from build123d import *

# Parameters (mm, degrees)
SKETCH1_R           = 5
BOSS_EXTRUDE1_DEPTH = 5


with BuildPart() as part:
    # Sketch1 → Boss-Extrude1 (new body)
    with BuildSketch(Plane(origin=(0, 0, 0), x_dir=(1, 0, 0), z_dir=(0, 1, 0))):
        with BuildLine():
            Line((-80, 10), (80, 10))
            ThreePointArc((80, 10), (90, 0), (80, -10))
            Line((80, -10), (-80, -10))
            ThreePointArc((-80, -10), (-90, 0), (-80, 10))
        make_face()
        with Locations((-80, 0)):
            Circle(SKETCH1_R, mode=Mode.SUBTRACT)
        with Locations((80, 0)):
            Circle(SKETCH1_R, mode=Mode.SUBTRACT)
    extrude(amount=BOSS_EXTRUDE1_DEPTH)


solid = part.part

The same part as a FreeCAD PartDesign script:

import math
import FreeCAD as App
import Part
import Sketcher

doc = App.newDocument("Part")
params = doc.addObject("Spreadsheet::Sheet", "Params")
for row, (alias, value) in enumerate([
    ("sketch1_diameter", "10 mm"),
    ("sketch1_radius", "10 mm"),
    ("sketch1_width", "160 mm"),
    ("pad1_length", "5 mm"),
], start=1):
    params.set(f"A{row}", alias)
    params.set(f"B{row}", "=" + value)
    params.setAlias(f"B{row}", alias)

body = doc.addObject("PartDesign::Body", "Body")

# Sketch on XZ plane
sketch1 = body.newObject("Sketcher::SketchObject", "Sketch")
sketch1.AttachmentSupport = (doc.getObject("XZ_Plane"), [""])
sketch1.MapMode = "FlatFace"
sketch1.addGeometry(Part.LineSegment(App.Vector(80, -10, 0), App.Vector(-80, -10, 0)), False)
sketch1.addGeometry(Part.ArcOfCircle(Part.Circle(App.Vector(-80, 0, 0), App.Vector(0, 0, 1), 10), math.radians(90), math.radians(270)), False)
sketch1.addGeometry(Part.LineSegment(App.Vector(-80, 10, 0), App.Vector(80, 10, 0)), False)
sketch1.addGeometry(Part.ArcOfCircle(Part.Circle(App.Vector(80, 0, 0), App.Vector(0, 0, 1), 10), math.radians(-90), math.radians(90)), False)
sketch1.addGeometry(Part.Circle(App.Vector(80, 0, 0), App.Vector(0, 0, 1), 5), False)
sketch1.addGeometry(Part.Circle(App.Vector(-80, 0, 0), App.Vector(0, 0, 1), 5), False)
sketch1.addConstraint(Sketcher.Constraint("Tangent", 0, 2, 1, 2))
sketch1.addConstraint(Sketcher.Constraint("Tangent", 1, 1, 2, 1))
sketch1.addConstraint(Sketcher.Constraint("Tangent", 2, 2, 3, 2))
sketch1.addConstraint(Sketcher.Constraint("Tangent", 3, 1, 0, 1))
sketch1.addConstraint(Sketcher.Constraint("Horizontal", 0))
sketch1.addConstraint(Sketcher.Constraint("Horizontal", 2))
sketch1.addConstraint(Sketcher.Constraint("Coincident", 4, 3, 3, 3))
sketch1.addConstraint(Sketcher.Constraint("Coincident", 5, 3, 1, 3))
sketch1.addConstraint(Sketcher.Constraint("Equal", 4, 5))
sketch1.addConstraint(Sketcher.Constraint("Symmetric", 1, 3, 3, 3, -1, 1))
sketch1.addConstraint(Sketcher.Constraint("Diameter", 4, 10.0))
sketch1.addConstraint(Sketcher.Constraint("Radius", 1, 10.0))
sketch1.addConstraint(Sketcher.Constraint("DistanceX", 0, 2, 0, 1, 160.0))
sketch1.setExpression("Constraints[10]", "Params.sketch1_diameter")
sketch1.setExpression("Constraints[11]", "Params.sketch1_radius")
sketch1.setExpression("Constraints[12]", "Params.sketch1_width")
pad1 = body.newObject("PartDesign::Pad", "Pad")
pad1.Profile = sketch1
pad1.setExpression("Length", "Params.pad1_length")
pad1.Reversed = True

doc.recompute()
